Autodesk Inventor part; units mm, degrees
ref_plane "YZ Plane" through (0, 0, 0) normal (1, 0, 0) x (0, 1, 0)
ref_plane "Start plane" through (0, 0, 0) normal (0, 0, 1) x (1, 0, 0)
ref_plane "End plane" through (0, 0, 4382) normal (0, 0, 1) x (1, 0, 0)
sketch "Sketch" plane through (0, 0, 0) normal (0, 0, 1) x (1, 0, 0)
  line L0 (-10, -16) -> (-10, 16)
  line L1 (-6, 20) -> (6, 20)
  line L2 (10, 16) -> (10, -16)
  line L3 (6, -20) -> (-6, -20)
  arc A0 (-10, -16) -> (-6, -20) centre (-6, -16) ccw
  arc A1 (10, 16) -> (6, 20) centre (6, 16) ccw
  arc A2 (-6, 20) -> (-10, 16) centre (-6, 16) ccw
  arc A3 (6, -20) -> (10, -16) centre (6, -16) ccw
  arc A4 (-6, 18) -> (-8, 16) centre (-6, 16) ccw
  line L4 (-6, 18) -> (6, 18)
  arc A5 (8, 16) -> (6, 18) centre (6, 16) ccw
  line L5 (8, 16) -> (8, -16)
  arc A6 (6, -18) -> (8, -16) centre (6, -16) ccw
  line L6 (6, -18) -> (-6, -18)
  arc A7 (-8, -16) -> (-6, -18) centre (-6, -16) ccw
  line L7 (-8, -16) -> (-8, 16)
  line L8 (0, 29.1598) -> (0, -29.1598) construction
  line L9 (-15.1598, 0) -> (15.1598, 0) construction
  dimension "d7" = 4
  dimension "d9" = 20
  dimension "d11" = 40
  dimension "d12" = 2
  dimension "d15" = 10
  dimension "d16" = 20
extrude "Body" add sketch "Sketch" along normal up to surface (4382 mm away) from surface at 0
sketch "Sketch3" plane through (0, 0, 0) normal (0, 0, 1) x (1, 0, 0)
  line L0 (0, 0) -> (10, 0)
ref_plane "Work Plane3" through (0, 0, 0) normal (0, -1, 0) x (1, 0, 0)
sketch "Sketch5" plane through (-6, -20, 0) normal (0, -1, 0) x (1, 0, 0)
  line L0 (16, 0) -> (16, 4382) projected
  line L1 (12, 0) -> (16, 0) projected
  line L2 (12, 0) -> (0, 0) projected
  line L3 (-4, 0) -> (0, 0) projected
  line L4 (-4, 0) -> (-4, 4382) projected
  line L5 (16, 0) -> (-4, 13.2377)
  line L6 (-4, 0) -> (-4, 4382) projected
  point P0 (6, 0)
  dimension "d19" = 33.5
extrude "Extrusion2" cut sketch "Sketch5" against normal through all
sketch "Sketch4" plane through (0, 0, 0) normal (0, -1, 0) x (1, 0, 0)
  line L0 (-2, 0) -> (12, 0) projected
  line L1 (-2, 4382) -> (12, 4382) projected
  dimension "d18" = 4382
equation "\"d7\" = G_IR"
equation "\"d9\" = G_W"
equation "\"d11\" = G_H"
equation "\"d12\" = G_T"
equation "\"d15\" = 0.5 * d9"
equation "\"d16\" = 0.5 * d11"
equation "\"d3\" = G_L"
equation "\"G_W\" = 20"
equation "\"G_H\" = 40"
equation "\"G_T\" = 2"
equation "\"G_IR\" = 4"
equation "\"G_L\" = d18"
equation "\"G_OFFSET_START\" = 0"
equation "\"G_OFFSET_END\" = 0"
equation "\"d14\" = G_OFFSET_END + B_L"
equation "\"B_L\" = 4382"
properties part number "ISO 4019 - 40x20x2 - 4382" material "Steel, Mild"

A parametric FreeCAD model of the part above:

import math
import FreeCAD as App
import Part
import Sketcher
Q = App.Units.Quantity

doc = App.newDocument("Part")
body = doc.addObject("PartDesign::Body", "Body")

sketch1 = body.newObject("Sketcher::SketchObject", "Sketch")
sketch1.AttachmentSupport = (doc.getObject("XY_Plane"), [""])
sketch1.MapMode = "FlatFace"
sketch1.addGeometry(Part.LineSegment(App.Vector(-10, 16, 0), App.Vector(-10, -16, 0)), False)
sketch1.addGeometry(Part.ArcOfCircle(Part.Circle(App.Vector(-6, -16, 0), App.Vector(0, 0, 1), 4), math.radians(180), math.radians(270)), False)
sketch1.addGeometry(Part.LineSegment(App.Vector(-6, -20, 0), App.Vector(6, -20, 0)), False)
sketch1.addGeometry(Part.ArcOfCircle(Part.Circle(App.Vector(6, -16, 0), App.Vector(0, 0, 1), 4), math.radians(-90), math.radians(0)), False)
sketch1.addGeometry(Part.LineSegment(App.Vector(10, -16, 0), App.Vector(10, 16, 0)), False)
sketch1.addGeometry(Part.ArcOfCircle(Part.Circle(App.Vector(6, 16, 0), App.Vector(0, 0, 1), 4), math.radians(0), math.radians(90)), False)
sketch1.addGeometry(Part.LineSegment(App.Vector(6, 20, 0), App.Vector(-6, 20, 0)), False)
sketch1.addGeometry(Part.ArcOfCircle(Part.Circle(App.Vector(-6, 16, 0), App.Vector(0, 0, 1), 4), math.radians(90), math.radians(180)), False)
sketch1.addGeometry(Part.ArcOfCircle(Part.Circle(App.Vector(-6, 16, 0), App.Vector(0, 0, 1), 2), math.radians(90), math.radians(180)), False)
sketch1.addGeometry(Part.LineSegment(App.Vector(-6, 18, 0), App.Vector(6, 18, 0)), False)
sketch1.addGeometry(Part.ArcOfCircle(Part.Circle(App.Vector(6, 16, 0), App.Vector(0, 0, 1), 2), math.radians(0), math.radians(90)), False)
sketch1.addGeometry(Part.LineSegment(App.Vector(8, 16, 0), App.Vector(8, -16, 0)), False)
sketch1.addGeometry(Part.ArcOfCircle(Part.Circle(App.Vector(6, -16, 0), App.Vector(0, 0, 1), 2), math.radians(-90), math.radians(0)), False)
sketch1.addGeometry(Part.LineSegment(App.Vector(6, -18, 0), App.Vector(-6, -18, 0)), False)
sketch1.addGeometry(Part.ArcOfCircle(Part.Circle(App.Vector(-6, -16, 0), App.Vector(0, 0, 1), 2), math.radians(180), math.radians(270)), False)
sketch1.addGeometry(Part.LineSegment(App.Vector(-8, -16, 0), App.Vector(-8, 16, 0)), False)
sketch1.addConstraint(Sketcher.Constraint("Tangent", 0, 2, 1, 1))
sketch1.addConstraint(Sketcher.Constraint("Tangent", 1, 2, 2, 1))
sketch1.addConstraint(Sketcher.Constraint("Tangent", 2, 2, 3, 1))
sketch1.addConstraint(Sketcher.Constraint("Tangent", 3, 2, 4, 1))
sketch1.addConstraint(Sketcher.Constraint("Tangent", 4, 2, 5, 1))
sketch1.addConstraint(Sketcher.Constraint("Tangent", 5, 2, 6, 1))
sketch1.addConstraint(Sketcher.Constraint("Tangent", 6, 2, 7, 1))
sketch1.addConstraint(Sketcher.Constraint("Tangent", 7, 2, 0, 1))
sketch1.addConstraint(Sketcher.Constraint("Tangent", 8, 1, 9, 1))
sketch1.addConstraint(Sketcher.Constraint("Tangent", 9, 2, 10, 2))
sketch1.addConstraint(Sketcher.Constraint("Tangent", 10, 1, 11, 1))
sketch1.addConstraint(Sketcher.Constraint("Tangent", 11, 2, 12, 2))
sketch1.addConstraint(Sketcher.Constraint("Tangent", 12, 1, 13, 1))
sketch1.addConstraint(Sketcher.Constraint("Tangent", 13, 2, 14, 2))
sketch1.addConstraint(Sketcher.Constraint("Tangent", 14, 1, 15, 1))
sketch1.addConstraint(Sketcher.Constraint("Tangent", 15, 2, 8, 2))
sketch1.addConstraint(Sketcher.Constraint("Vertical", 0))
sketch1.addConstraint(Sketcher.Constraint("Horizontal", 2))
sketch1.addConstraint(Sketcher.Constraint("Vertical", 4))
sketch1.addConstraint(Sketcher.Constraint("Horizontal", 6))
sketch1.addConstraint(Sketcher.Constraint("Horizontal", 9))
sketch1.addConstraint(Sketcher.Constraint("Vertical", 11))
sketch1.addConstraint(Sketcher.Constraint("Horizontal", 13))
sketch1.addConstraint(Sketcher.Constraint("Vertical", 15))
sketch1.addConstraint(Sketcher.Constraint("Coincident", 8, 3, 7, 3))
sketch1.addConstraint(Sketcher.Constraint("Coincident", 10, 3, 5, 3))
sketch1.addConstraint(Sketcher.Constraint("Coincident", 12, 3, 3, 3))
sketch1.addConstraint(Sketcher.Constraint("Equal", 1, 3))
sketch1.addConstraint(Sketcher.Constraint("Equal", 3, 5))
sketch1.addConstraint(Sketcher.Constraint("Equal", 5, 7))
sketch1.addConstraint(Sketcher.Constraint("Equal", 12, 14))
sketch1.addConstraint(Sketcher.Constraint("Symmetric", 1, 3, 5, 3, -1, 1))
sketch1.addConstraint(Sketcher.Constraint("Radius", 1, 4.0))
sketch1.addConstraint(Sketcher.Constraint("Radius", 8, 2.0))
sketch1.addConstraint(Sketcher.Constraint("DistanceX", 0, 2, -1, 1, 10.0))
sketch1.addConstraint(Sketcher.Constraint("DistanceY", 1, 2, -1, 1, 20.0))
pad1 = body.newObject("PartDesign::Pad", "Pad")
pad1.Profile = sketch1
pad1.Length = 4382

sketch2 = body.newObject("Sketcher::SketchObject", "Sketch001")
sketch2.AttachmentSupport = (doc.getObject("XZ_Plane"), [""])
sketch2.MapMode = "FlatFace"
sketch2.AttachmentOffset = App.Placement(App.Vector(0, 0, 20), App.Rotation())
sketch2.addGeometry(Part.LineSegment(App.Vector(-10, 0, 0), App.Vector(10, 0, 0)), False)
sketch2.addGeometry(Part.LineSegment(App.Vector(10, 0, 0), App.Vector(-10, 13, 0)), False)
sketch2.addGeometry(Part.LineSegment(App.Vector(-10, 13, 0), App.Vector(-10, 0, 0)), False)
sketch2.addConstraint(Sketcher.Constraint("Coincident", 0, 2, 1, 1))
sketch2.addConstraint(Sketcher.Constraint("Coincident", 1, 2, 2, 1))
sketch2.addConstraint(Sketcher.Constraint("Coincident", 2, 2, 0, 1))
sketch2.addConstraint(Sketcher.Constraint("Horizontal", 0))
sketch2.addConstraint(Sketcher.Constraint("Vertical", 2))
sketch2.addConstraint(Sketcher.Constraint("Symmetric", 0, 2, 2, 2, -1, 1))
sketch2.addConstraint(Sketcher.Constraint("DistanceX", 0, 1, 0, 2, 20.0))
sketch2.addConstraint(Sketcher.Constraint("Angle", 1, Q("146.5 deg")))
pocket1 = body.newObject("PartDesign::Pocket", "Pocket")
pocket1.Profile = sketch2
pocket1.Type = "ThroughAll"

doc.recompute()
